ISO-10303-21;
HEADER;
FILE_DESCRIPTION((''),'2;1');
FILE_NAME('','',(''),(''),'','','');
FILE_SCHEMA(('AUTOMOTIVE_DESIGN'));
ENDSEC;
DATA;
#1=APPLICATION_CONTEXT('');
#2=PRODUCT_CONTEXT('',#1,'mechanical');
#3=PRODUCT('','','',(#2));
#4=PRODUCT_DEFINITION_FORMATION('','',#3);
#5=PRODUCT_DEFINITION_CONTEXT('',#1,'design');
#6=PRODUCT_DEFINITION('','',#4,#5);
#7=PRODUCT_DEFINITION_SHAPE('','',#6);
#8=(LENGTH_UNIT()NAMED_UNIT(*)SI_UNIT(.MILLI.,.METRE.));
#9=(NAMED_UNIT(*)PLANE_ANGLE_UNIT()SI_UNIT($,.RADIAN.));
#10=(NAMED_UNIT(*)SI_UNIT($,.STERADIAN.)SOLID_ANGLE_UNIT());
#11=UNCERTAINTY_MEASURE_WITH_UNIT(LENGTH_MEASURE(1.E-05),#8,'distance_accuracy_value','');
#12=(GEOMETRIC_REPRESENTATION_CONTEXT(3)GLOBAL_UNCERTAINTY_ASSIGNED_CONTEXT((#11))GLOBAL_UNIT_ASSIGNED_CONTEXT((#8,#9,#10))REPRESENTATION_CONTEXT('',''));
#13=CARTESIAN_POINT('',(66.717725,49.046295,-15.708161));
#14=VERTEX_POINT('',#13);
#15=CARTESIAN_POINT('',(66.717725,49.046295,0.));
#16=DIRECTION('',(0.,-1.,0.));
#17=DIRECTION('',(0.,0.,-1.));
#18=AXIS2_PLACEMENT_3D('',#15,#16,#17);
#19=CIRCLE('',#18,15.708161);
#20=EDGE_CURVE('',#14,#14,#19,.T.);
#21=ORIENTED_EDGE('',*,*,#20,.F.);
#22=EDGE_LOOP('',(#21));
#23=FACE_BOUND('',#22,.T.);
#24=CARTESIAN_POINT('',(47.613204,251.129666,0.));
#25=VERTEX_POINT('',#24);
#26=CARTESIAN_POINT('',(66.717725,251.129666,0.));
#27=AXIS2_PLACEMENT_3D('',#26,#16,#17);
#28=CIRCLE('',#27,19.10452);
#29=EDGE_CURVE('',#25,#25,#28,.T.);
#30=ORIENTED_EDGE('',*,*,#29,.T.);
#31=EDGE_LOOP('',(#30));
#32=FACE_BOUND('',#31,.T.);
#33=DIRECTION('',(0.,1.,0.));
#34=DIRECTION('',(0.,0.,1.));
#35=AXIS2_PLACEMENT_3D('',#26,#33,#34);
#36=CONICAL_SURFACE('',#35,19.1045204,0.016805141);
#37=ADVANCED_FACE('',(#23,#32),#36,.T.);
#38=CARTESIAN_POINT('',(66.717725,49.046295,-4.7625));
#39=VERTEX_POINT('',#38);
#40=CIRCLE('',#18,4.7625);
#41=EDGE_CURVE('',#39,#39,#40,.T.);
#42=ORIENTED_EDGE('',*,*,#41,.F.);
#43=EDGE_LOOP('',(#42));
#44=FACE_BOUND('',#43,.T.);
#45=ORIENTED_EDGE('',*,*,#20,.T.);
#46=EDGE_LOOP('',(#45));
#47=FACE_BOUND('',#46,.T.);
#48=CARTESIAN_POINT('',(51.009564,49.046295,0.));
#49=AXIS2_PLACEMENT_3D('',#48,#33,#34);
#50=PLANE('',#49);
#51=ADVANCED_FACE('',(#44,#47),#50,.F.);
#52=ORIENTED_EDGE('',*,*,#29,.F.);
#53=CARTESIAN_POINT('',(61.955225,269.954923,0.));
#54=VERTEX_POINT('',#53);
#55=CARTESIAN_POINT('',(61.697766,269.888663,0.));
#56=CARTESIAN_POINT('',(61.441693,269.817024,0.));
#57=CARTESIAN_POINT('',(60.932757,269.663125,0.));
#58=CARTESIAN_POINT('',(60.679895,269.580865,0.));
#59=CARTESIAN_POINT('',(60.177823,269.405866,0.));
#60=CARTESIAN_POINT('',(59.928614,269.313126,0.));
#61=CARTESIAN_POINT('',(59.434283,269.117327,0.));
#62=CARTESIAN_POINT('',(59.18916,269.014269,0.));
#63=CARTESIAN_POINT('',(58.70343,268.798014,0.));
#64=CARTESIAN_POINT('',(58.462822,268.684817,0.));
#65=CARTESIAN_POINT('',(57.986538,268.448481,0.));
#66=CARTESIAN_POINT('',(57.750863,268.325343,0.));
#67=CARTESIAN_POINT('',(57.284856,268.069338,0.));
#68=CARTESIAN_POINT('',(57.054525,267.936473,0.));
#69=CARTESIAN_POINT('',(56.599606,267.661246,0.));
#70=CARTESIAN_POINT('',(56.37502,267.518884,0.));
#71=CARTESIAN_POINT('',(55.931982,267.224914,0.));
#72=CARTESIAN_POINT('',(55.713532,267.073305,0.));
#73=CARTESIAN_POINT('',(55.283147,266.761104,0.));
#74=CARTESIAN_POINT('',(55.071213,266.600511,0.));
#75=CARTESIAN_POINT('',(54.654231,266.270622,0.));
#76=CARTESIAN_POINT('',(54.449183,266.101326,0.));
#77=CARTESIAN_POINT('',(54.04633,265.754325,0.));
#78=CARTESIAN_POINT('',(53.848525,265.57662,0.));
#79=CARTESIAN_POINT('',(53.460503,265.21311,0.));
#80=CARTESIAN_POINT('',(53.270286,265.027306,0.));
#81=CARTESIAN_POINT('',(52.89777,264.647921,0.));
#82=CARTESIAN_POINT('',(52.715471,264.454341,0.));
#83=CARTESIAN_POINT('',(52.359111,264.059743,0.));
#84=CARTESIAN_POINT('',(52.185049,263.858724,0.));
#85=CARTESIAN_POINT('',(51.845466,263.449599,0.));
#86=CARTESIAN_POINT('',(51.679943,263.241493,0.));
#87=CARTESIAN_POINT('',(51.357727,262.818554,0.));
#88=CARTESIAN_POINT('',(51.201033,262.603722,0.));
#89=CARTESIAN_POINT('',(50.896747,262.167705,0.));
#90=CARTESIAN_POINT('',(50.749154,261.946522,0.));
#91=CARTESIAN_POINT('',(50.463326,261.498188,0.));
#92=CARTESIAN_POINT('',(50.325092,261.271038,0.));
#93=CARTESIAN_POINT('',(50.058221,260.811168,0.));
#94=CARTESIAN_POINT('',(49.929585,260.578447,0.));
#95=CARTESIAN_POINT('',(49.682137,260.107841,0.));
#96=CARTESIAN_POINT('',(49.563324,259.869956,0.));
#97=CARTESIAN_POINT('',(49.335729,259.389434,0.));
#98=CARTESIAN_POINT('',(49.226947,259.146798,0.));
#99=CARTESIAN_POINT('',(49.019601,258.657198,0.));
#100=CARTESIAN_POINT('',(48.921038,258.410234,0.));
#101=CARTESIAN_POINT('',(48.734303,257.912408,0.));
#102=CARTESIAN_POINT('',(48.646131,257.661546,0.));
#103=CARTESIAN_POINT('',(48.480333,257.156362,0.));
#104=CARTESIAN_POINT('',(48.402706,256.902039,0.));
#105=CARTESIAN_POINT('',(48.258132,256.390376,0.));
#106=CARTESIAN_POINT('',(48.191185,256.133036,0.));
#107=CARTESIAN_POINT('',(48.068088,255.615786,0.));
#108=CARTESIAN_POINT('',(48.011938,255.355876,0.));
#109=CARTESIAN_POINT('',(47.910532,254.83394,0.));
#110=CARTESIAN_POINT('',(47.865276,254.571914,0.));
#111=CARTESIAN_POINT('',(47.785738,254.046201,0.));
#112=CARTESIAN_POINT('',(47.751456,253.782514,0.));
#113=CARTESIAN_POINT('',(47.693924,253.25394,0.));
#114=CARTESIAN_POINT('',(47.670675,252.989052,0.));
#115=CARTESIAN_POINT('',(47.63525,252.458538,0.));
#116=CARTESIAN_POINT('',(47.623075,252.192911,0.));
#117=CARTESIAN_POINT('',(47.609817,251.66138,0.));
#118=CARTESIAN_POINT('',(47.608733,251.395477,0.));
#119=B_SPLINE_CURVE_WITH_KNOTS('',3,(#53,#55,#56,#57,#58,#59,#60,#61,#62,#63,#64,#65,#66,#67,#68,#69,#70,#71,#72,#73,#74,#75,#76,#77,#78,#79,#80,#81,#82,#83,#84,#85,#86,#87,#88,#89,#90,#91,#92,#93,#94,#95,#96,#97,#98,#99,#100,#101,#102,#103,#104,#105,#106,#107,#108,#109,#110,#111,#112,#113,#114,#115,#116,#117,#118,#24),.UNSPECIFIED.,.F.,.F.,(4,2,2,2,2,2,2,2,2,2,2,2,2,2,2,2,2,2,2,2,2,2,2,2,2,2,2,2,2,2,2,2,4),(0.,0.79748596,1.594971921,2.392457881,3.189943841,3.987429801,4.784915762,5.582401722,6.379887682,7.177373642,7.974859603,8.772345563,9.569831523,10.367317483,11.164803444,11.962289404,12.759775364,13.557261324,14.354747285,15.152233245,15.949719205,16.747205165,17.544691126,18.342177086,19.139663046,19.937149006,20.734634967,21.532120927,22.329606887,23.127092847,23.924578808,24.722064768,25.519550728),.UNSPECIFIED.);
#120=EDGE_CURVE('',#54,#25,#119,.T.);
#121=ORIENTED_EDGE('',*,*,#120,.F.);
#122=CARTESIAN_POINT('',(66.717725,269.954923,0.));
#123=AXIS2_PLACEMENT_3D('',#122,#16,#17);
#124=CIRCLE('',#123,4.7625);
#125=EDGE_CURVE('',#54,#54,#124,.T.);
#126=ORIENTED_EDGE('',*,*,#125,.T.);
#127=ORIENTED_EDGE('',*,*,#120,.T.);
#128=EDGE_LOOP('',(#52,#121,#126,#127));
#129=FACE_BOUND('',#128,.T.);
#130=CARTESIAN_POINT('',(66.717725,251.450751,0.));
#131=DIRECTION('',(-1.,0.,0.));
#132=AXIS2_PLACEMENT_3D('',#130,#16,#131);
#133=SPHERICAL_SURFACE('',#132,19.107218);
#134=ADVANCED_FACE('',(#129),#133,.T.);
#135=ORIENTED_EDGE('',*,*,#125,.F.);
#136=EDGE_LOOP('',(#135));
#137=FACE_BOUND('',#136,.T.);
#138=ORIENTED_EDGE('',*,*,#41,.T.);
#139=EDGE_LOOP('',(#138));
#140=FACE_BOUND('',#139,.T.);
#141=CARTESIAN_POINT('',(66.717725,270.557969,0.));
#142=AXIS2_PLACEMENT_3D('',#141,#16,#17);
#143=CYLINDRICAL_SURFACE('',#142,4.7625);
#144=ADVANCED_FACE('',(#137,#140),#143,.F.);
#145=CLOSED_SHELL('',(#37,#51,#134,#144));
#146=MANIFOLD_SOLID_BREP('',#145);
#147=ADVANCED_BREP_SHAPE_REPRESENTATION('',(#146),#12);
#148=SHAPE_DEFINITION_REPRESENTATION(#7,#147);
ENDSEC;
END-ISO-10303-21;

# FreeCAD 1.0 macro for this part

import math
import FreeCAD as App
import Part
import Sketcher
Q = App.Units.Quantity


def add_polygon(sketch, points):
    """Adds a closed chain of lines whose ends are joined by coincident constraints."""
    first, n = sketch.GeometryCount, len(points)
    for a, b in zip(points, points[1:] + points[:1]):
        sketch.addGeometry(Part.LineSegment(App.Vector(*a, 0), App.Vector(*b, 0)), False)
    for i in range(n):
        sketch.addConstraint(Sketcher.Constraint("Coincident", first + i, 2, first + (i + 1) % n, 1))

doc = App.newDocument("Part")
body = doc.addObject("PartDesign::Body", "Body")

# Sketch on XY plane
sketch1 = doc.addObject("Sketcher::SketchObject", "Sketch")
body.addObject(sketch1)
sketch1.AttachmentSupport = (doc.XY_Plane, [""])
sketch1.MapMode = "FlatFace"
add_polygon(sketch1, [(67, 49), (67, 251), (48, 251), (51, 49)])  # lines 0-3
sketch1.addGeometry(Part.LineSegment(App.Vector(67, 49, 0), App.Vector(67, 251, 0)), True)  # axis
sketch1.addConstraint([
    Sketcher.Constraint("Vertical", 0),
    Sketcher.Constraint("Horizontal", 1),
    Sketcher.Constraint("Horizontal", 3),
    Sketcher.Constraint("Vertical", 4),
    Sketcher.Constraint("Coincident", 4, 1, 3, 2),
    Sketcher.Constraint("Horizontal", 1, 2, 4, 2),
    Sketcher.Constraint("DistanceX", 1, 2, 1, 1, Q("19.10452 mm")),
    Sketcher.Constraint("DistanceX", 3, 1, 3, 2, Q("15.708161 mm")),
    Sketcher.Constraint("DistanceY", 0, 1, 0, 2, Q("202.083371 mm")),
    Sketcher.Constraint("DistanceX", -1, 1, 0, 2, Q("66.717725 mm")),
    Sketcher.Constraint("DistanceY", -1, 1, 0, 2, Q("251.129666 mm")),
])
revolution = doc.addObject("PartDesign::Revolution", "Revolution")
body.addObject(revolution)
revolution.Profile = sketch1
revolution.ReferenceAxis = (sketch1, ["Axis0"])
revolution.Angle = 360

# Sketch on XY plane
sketch2 = doc.addObject("Sketcher::SketchObject", "Sketch001")
body.addObject(sketch2)
sketch2.AttachmentSupport = (doc.XY_Plane, [""])
sketch2.MapMode = "FlatFace"
sketch2.addGeometry([
    Part.LineSegment(App.Vector(67, 251, 0), App.Vector(67, 271, 0)),
    Part.ArcOfCircle(Part.Circle(App.Vector(67, 251, 0), App.Vector(0, 0, 1), 19), math.radians(90), math.radians(181)),
    Part.LineSegment(App.Vector(48, 251, 0), App.Vector(67, 251, 0)),
], False)
sketch2.addGeometry(Part.LineSegment(App.Vector(67, 251, 0), App.Vector(67, 271, 0)), True)  # axis
sketch2.addConstraint([
    Sketcher.Constraint("Coincident", 0, 2, 1, 1),
    Sketcher.Constraint("Coincident", 1, 2, 2, 1),
    Sketcher.Constraint("Coincident", 2, 2, 0, 1),
    Sketcher.Constraint("Vertical", 0),
    Sketcher.Constraint("Horizontal", 2),
    Sketcher.Constraint("Vertical", 3),
    Sketcher.Constraint("Coincident", 3, 1, 2, 2),
    Sketcher.Constraint("Vertical", 1, 3, 0, 2),
    Sketcher.Constraint("Equal", 0, 3),
    Sketcher.Constraint("Radius", 1, Q("19.107218 mm")),
    Sketcher.Constraint("DistanceX", 2, 1, 2, 2, Q("19.10452 mm")),
    Sketcher.Constraint("DistanceY", -1, 1, 1, 3, Q("251.450751 mm")),
    Sketcher.Constraint("DistanceX", -1, 1, 1, 3, Q("66.717725 mm")),
])
revolution2 = doc.addObject("PartDesign::Revolution", "Revolution001")
body.addObject(revolution2)
revolution2.Profile = sketch2
revolution2.ReferenceAxis = (sketch2, ["Axis0"])
revolution2.Angle = 360

# Sketch on XZ plane
sketch3 = doc.addObject("Sketcher::SketchObject", "Sketch002")
body.addObject(sketch3)
sketch3.AttachmentSupport = (doc.XZ_Plane, [""])
sketch3.MapMode = "FlatFace"
sketch3.AttachmentOffset = App.Placement(App.Vector(0, 0, -49.046295), App.Rotation())
sketch3.addGeometry(Part.Circle(App.Vector(66.7, 0, 0), App.Vector(0, 0, 1), 4.8), False)
sketch3.addConstraint([
    Sketcher.Constraint("PointOnObject", 0, 3, -1),
    Sketcher.Constraint("Diameter", 0, Q("0.375 in")),
    Sketcher.Constraint("DistanceX", -1, 1, 0, 3, Q("66.717725 mm")),
])
pocket1 = doc.addObject("PartDesign::Pocket", "Pocket")
body.addObject(pocket1)
pocket1.Profile = sketch3
pocket1.Type = "ThroughAll"

doc.recompute()
